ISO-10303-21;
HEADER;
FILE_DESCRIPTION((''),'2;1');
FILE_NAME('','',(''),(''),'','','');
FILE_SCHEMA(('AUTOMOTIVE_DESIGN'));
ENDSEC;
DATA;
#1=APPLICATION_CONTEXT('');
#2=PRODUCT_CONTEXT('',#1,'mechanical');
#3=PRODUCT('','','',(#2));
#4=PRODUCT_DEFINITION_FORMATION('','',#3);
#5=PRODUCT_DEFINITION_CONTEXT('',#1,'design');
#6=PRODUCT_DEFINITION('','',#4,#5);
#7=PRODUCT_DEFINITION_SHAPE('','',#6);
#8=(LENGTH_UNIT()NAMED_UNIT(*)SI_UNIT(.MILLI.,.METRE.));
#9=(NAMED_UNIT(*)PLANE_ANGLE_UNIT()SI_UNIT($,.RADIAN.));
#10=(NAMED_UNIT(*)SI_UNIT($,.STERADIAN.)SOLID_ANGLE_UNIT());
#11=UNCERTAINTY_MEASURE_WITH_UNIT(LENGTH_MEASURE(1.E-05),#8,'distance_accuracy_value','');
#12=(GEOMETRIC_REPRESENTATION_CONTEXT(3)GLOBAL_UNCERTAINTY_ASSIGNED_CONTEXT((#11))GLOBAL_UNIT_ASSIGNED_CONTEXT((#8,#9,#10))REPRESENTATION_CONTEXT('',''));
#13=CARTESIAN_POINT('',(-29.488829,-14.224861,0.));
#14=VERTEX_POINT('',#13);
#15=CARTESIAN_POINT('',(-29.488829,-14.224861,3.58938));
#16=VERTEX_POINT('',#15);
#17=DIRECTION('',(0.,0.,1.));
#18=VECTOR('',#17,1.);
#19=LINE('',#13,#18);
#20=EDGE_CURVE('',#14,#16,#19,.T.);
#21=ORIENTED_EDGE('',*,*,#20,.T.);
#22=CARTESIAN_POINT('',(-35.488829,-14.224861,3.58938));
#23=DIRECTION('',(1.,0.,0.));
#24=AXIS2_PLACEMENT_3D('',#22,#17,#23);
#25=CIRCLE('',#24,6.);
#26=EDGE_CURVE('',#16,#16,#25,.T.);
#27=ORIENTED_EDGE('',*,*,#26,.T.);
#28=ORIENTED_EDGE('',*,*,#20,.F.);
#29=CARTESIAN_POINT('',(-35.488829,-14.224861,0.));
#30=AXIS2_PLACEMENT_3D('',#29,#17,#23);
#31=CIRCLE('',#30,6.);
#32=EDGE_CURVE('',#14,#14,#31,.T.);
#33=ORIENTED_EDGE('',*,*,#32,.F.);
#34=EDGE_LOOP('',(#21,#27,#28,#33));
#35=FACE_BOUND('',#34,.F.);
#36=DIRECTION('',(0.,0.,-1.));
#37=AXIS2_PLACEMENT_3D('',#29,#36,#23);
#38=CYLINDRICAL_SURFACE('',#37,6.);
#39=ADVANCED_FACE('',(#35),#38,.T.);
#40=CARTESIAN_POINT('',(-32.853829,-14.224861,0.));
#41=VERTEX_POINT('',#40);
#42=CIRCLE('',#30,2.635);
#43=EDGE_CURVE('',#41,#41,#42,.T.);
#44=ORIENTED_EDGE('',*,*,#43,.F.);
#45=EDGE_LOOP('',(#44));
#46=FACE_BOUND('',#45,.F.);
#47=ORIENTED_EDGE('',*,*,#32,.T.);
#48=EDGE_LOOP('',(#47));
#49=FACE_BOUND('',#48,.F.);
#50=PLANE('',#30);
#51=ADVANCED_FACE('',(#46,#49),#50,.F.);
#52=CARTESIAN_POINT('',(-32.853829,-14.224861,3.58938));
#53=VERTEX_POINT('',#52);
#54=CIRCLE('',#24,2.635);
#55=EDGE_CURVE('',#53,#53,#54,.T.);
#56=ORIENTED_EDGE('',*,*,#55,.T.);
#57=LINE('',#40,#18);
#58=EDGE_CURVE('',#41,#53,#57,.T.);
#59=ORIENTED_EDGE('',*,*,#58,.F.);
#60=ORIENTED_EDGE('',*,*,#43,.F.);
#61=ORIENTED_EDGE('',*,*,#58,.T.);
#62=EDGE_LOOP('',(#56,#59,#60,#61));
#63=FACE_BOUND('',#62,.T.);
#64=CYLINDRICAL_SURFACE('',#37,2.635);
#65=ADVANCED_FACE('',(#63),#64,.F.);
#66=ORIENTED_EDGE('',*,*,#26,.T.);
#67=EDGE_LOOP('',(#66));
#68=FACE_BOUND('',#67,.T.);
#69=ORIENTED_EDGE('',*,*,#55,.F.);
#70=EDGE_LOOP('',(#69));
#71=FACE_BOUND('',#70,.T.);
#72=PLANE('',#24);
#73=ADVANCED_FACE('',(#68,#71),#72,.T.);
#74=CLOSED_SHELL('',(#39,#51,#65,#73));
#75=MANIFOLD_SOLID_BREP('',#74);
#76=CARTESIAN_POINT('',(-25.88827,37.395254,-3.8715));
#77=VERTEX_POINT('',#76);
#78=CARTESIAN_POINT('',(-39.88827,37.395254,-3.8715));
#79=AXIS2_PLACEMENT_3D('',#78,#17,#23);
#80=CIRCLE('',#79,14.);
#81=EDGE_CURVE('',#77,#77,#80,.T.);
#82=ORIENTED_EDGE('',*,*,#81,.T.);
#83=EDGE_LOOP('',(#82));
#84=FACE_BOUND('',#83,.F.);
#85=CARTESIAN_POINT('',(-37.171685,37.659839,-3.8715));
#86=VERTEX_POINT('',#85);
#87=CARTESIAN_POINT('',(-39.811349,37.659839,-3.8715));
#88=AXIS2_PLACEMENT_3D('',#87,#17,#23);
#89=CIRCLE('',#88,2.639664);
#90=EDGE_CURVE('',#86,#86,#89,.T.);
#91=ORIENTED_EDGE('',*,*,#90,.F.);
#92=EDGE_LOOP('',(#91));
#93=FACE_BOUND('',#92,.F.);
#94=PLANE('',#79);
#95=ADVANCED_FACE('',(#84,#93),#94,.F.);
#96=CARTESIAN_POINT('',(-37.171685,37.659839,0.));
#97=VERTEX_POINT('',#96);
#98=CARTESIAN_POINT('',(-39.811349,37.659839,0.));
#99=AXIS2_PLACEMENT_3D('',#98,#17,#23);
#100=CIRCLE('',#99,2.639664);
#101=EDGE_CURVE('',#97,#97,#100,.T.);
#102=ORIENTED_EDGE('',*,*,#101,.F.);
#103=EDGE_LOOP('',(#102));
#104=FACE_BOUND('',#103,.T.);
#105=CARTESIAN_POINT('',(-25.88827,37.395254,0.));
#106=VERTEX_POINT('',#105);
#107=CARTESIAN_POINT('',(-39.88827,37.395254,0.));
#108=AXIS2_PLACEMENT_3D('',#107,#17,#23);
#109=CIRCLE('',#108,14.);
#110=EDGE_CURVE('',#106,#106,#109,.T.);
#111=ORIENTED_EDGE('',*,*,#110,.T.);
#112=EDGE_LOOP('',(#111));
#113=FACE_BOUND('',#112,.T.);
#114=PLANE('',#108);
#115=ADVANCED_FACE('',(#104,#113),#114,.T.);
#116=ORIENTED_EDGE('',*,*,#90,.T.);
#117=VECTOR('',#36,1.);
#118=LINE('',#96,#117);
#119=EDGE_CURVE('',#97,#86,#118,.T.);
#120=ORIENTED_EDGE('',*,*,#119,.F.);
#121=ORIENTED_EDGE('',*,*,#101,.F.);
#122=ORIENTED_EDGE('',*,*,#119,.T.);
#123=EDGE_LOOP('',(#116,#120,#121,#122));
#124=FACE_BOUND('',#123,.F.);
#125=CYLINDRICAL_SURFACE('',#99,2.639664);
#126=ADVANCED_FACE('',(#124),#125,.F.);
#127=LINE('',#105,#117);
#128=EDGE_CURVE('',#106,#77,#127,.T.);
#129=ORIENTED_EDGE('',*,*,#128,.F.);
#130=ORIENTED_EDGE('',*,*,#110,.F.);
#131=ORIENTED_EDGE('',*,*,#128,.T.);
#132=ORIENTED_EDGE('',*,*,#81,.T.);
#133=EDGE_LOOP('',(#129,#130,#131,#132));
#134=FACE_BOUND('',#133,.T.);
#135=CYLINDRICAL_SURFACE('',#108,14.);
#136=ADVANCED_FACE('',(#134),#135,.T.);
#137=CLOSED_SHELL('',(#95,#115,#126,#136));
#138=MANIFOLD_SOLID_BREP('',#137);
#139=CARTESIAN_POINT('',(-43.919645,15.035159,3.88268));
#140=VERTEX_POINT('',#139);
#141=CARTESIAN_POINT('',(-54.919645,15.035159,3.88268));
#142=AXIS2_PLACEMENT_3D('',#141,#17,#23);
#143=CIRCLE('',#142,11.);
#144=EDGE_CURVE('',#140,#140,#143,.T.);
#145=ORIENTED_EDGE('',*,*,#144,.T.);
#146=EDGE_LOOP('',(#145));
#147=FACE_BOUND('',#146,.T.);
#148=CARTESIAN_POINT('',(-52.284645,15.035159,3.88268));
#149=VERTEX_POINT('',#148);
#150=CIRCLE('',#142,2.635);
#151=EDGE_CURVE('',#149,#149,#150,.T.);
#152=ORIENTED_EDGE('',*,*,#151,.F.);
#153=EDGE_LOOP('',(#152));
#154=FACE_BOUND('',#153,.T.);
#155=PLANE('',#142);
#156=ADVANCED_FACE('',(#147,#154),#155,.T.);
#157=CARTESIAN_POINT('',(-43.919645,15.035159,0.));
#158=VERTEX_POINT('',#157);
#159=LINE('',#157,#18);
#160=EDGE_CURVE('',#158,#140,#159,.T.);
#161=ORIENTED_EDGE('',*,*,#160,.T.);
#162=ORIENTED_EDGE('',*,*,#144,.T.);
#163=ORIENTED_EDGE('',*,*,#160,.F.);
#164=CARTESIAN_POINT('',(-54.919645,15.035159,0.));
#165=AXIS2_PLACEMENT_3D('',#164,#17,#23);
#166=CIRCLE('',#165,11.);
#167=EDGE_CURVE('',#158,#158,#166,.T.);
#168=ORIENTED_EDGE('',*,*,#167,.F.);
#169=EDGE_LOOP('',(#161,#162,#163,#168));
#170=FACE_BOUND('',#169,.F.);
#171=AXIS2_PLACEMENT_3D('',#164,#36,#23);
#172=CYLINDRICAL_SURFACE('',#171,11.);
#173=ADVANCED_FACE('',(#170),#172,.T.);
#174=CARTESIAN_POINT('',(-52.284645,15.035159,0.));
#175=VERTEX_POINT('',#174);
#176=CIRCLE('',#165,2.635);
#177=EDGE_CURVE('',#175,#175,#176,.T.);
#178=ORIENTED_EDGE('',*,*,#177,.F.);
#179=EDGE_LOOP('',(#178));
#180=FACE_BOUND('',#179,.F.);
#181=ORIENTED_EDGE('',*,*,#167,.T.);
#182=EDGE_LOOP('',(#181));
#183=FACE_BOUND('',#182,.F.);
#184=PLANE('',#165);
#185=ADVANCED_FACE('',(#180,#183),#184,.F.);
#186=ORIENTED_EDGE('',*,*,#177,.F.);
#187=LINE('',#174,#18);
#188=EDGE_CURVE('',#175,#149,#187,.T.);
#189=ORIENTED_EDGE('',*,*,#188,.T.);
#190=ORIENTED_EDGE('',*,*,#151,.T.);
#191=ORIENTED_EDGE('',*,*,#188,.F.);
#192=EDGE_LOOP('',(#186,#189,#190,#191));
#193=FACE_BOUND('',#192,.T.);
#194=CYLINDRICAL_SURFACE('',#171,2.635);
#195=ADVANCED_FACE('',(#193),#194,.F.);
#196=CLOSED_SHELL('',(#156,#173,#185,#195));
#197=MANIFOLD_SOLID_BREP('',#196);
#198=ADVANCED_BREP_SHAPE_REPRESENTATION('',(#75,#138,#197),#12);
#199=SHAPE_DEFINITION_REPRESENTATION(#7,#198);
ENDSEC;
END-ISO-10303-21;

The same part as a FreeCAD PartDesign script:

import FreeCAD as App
import Part
import Sketcher
from FreeCAD import Vector

doc = App.newDocument("Part")
params = doc.addObject("Spreadsheet::Sheet", "Params")
for row, (alias, value) in enumerate([
    ("sketch1_diameter", "28 mm"),
    ("pad1_length", "3.8715 mm"),
    ("pocket1_length", "25 mm"),
    ("sketch3_diameter", "22 mm"),
    ("sketch3_diameter2", "5.27 mm"),
    ("pad2_length", "3.88268 mm"),
    ("sketch4_diameter", "12 mm"),
    ("sketch4_diameter2", "5.27 mm"),
    ("pad3_length", "3.58938 mm"),
], start=1):
    params.set(f"A{row}", alias)
    params.set(f"B{row}", "=" + value)
    params.setAlias(f"B{row}", alias)

body = doc.addObject("PartDesign::Body", "Body")

# Sketch on XY plane
sketch1 = body.newObject("Sketcher::SketchObject", "Sketch")
sketch1.AttachmentSupport = (doc.getObject("XY_Plane"), [""])
sketch1.MapMode = "FlatFace"
sketch1.addGeometry(Part.Circle(Vector(-39.88827, 37.395254, 0), Vector(0, 0, 1), 14), False)
sketch1.addConstraint([
    Sketcher.Constraint("Diameter", 0, 28.0),
    Sketcher.Constraint("DistanceX", 0, 3, -1, 1, 39.88827),
    Sketcher.Constraint("DistanceY", -1, 1, 0, 3, 37.395254),
])
sketch1.setExpression("Constraints[0]", "Params.sketch1_diameter")
pad1 = body.newObject("PartDesign::Pad", "Pad")
pad1.Profile = sketch1
pad1.setExpression("Length", "Params.pad1_length")
pad1.Reversed = True

# Sketch on XY plane
sketch2 = body.newObject("Sketcher::SketchObject", "Sketch001")
sketch2.AttachmentSupport = (doc.getObject("XY_Plane"), [""])
sketch2.MapMode = "FlatFace"
sketch2.addGeometry(Part.Circle(Vector(-39.811349, 37.659839, 0), Vector(0, 0, 1), 2.639664), False)
sketch2.addConstraint([
    Sketcher.Constraint("Diameter", 0, 5.279328),
    Sketcher.Constraint("DistanceX", 0, 3, -1, 1, 39.811349),
    Sketcher.Constraint("DistanceY", -1, 1, 0, 3, 37.659839),
])
pocket1 = body.newObject("PartDesign::Pocket", "Pocket")
pocket1.Profile = sketch2
pocket1.setExpression("Length", "Params.pocket1_length")
body2 = doc.addObject("PartDesign::Body", "Body001")

# Sketch on XY plane
sketch3 = body2.newObject("Sketcher::SketchObject", "Sketch002")
sketch3.AttachmentSupport = (doc.getObject("XY_Plane001"), [""])
sketch3.MapMode = "FlatFace"
sketch3.addGeometry([
    Part.Circle(Vector(-54.919645, 15.035159, 0), Vector(0, 0, 1), 11),
    Part.Circle(Vector(-54.919645, 15.035159, 0), Vector(0, 0, 1), 2.635),
], False)
sketch3.addConstraint([
    Sketcher.Constraint("Coincident", 1, 3, 0, 3),
    Sketcher.Constraint("Diameter", 0, 22.0),
    Sketcher.Constraint("Diameter", 1, 5.27),
    Sketcher.Constraint("DistanceY", -1, 1, 0, 3, 15.035159),
    Sketcher.Constraint("DistanceX", 0, 3, -1, 1, 54.919645),
])
sketch3.setExpression("Constraints[1]", "Params.sketch3_diameter")
sketch3.setExpression("Constraints[2]", "Params.sketch3_diameter2")
pad2 = body2.newObject("PartDesign::Pad", "Pad001")
pad2.Profile = sketch3
pad2.setExpression("Length", "Params.pad2_length")
body3 = doc.addObject("PartDesign::Body", "Body002")

# Sketch on XY plane
sketch4 = body3.newObject("Sketcher::SketchObject", "Sketch003")
sketch4.AttachmentSupport = (doc.getObject("XY_Plane002"), [""])
sketch4.MapMode = "FlatFace"
sketch4.addGeometry([
    Part.Circle(Vector(-35.488829, -14.224861, 0), Vector(0, 0, 1), 6),
    Part.Circle(Vector(-35.488829, -14.224861, 0), Vector(0, 0, 1), 2.635),
], False)
sketch4.addConstraint([
    Sketcher.Constraint("Coincident", 1, 3, 0, 3),
    Sketcher.Constraint("Diameter", 0, 12.0),
    Sketcher.Constraint("Diameter", 1, 5.27),
    Sketcher.Constraint("DistanceX", 0, 3, -1, 1, 35.488829),
    Sketcher.Constraint("DistanceY", 0, 3, -1, 1, 14.224861),
])
sketch4.setExpression("Constraints[1]", "Params.sketch4_diameter")
sketch4.setExpression("Constraints[2]", "Params.sketch4_diameter2")
pad3 = body3.newObject("PartDesign::Pad", "Pad002")
pad3.Profile = sketch4
pad3.setExpression("Length", "Params.pad3_length")

doc.recompute()
